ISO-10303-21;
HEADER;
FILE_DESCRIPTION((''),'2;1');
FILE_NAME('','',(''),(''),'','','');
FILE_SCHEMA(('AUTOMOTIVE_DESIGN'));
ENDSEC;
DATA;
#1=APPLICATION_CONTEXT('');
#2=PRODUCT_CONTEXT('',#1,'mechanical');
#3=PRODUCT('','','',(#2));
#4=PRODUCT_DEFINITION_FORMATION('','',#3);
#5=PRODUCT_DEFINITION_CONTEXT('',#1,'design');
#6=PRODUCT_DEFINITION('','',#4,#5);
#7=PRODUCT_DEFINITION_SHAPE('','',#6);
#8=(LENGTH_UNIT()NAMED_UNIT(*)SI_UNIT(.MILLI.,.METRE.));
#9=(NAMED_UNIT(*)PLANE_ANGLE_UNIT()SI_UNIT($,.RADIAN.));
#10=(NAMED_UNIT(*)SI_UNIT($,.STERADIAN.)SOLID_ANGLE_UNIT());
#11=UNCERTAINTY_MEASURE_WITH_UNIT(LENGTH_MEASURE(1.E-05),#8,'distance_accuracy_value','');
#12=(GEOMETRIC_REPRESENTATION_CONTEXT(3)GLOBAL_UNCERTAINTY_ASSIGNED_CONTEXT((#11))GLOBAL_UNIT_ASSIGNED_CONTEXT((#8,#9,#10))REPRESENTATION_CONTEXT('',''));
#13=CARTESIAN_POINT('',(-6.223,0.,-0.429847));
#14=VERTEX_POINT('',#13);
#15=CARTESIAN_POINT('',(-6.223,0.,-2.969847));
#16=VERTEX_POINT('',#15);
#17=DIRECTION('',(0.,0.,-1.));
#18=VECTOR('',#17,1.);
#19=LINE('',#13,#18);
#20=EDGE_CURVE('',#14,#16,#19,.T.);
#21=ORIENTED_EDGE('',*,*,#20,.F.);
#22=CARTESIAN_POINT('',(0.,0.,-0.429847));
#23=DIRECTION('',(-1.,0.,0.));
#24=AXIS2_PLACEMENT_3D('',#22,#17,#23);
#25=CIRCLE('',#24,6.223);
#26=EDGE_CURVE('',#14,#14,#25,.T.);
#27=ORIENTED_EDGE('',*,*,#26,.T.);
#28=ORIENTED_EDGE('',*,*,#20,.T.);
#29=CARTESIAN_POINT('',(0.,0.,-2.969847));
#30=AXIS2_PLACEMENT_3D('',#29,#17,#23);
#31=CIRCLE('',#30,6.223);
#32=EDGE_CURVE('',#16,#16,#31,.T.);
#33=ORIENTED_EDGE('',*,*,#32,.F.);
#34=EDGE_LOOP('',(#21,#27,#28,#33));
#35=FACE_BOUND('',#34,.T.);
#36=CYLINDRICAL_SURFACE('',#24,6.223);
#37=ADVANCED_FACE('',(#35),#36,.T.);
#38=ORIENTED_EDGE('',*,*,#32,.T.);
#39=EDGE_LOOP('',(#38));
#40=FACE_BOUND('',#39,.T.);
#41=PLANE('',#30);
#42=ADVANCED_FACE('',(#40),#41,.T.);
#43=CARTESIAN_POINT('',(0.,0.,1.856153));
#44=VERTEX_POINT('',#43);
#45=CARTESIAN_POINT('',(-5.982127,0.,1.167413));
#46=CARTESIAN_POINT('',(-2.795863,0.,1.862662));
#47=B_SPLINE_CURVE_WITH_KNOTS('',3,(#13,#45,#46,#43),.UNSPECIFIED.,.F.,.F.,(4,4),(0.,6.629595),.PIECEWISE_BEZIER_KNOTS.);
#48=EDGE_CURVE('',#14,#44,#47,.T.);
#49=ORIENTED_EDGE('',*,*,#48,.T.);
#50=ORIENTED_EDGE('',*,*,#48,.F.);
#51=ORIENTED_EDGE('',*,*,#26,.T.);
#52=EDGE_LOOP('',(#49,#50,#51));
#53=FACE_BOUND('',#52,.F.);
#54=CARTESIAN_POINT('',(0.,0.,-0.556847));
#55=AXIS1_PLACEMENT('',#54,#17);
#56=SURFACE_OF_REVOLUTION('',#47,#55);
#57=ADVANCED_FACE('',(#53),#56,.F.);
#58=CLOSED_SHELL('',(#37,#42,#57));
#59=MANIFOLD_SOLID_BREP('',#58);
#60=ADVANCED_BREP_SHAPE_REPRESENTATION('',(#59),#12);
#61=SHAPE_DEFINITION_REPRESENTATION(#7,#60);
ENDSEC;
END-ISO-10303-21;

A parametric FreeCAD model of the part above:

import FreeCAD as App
import Part
import Sketcher
from FreeCAD import Vector
Q = App.Units.Quantity

doc = App.newDocument("Part")
params = doc.addObject("Spreadsheet::Sheet", "Params")
for row, (alias, value) in enumerate([
    ("sketch1_height", "0.1 in"),
    ("revolution_angle", "360 deg"),
], start=1):
    params.set(f"A{row}", alias)
    params.set(f"B{row}", "=" + value)
    params.setAlias(f"B{row}", alias)

body = doc.addObject("PartDesign::Body", "Body")

sketch1 = body.newObject("Sketcher::SketchObject", "Sketch")
sketch1.AttachmentSupport = (doc.getObject("XZ_Plane"), [""])
sketch1.MapMode = "FlatFace"
sketch1.addGeometry(Part.LineSegment(Vector(0, -2.969847, 0), Vector(0, 1.856153, 0)), False)
sketch1.addGeometry(Part.BSplineCurve([Vector(-6.223, -0.429847, 0), Vector(-5.982127, 1.167413, 0), Vector(-2.795863, 1.862662, 0), Vector(0, 1.856153, 0)], [4, 4], [0, 6.629595], False, 3, [1, 1, 1, 1], False), False)
sketch1.addGeometry(Part.LineSegment(Vector(-6.223, -0.429847, 0), Vector(-6.223, -2.969847, 0)), False)
sketch1.addGeometry(Part.LineSegment(Vector(-6.223, -2.969847, 0), Vector(0, -2.969847, 0)), False)
sketch1.addConstraint(Sketcher.Constraint("Block", 1))
sketch1.addConstraint(Sketcher.Constraint("Coincident", 0, 2, 1, 2))
sketch1.addConstraint(Sketcher.Constraint("Coincident", 1, 1, 2, 1))
sketch1.addConstraint(Sketcher.Constraint("Coincident", 2, 2, 3, 1))
sketch1.addConstraint(Sketcher.Constraint("Coincident", 3, 2, 0, 1))
sketch1.addConstraint(Sketcher.Constraint("Vertical", 0))
sketch1.addConstraint(Sketcher.Constraint("Vertical", 2))
sketch1.addConstraint(Sketcher.Constraint("Horizontal", 3))
sketch1.addConstraint(Sketcher.Constraint("DistanceY", 2, 2, 2, 1, Q("0.1 in")))
sketch1.setExpression("Constraints[8]", "Params.sketch1_height")
revolution = body.newObject("PartDesign::Revolution", "Revolution")
revolution.Profile = sketch1
revolution.ReferenceAxis = (sketch1, ["V_Axis"])
revolution.setExpression("Angle", "Params.revolution_angle")

doc.recompute()
